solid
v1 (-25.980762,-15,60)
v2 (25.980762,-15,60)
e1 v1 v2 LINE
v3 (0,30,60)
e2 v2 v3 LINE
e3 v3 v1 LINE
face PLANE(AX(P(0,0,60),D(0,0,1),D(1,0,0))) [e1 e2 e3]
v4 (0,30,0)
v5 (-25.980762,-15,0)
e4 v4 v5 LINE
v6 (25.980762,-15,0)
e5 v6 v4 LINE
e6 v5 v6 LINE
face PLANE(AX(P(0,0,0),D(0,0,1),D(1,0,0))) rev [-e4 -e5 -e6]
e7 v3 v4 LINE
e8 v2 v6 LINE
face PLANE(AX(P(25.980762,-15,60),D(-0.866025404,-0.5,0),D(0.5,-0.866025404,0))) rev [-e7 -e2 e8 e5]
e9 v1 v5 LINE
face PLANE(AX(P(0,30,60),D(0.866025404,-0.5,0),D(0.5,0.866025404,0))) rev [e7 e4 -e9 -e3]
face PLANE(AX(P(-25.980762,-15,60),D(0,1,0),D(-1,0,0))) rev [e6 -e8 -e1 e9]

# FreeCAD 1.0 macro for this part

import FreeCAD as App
import Part
import Sketcher
from FreeCAD import Vector
Q = App.Units.Quantity

doc = App.newDocument("Part")
body = doc.addObject("PartDesign::Body", "Body")

# Sketch on XY plane
sketch1 = body.newObject("Sketcher::SketchObject", "Sketch")
sketch1.AttachmentSupport = (doc.getObject("XY_Plane"), [""])
sketch1.MapMode = "FlatFace"
sketch1.addGeometry(Part.LineSegment(Vector(0, 30, 0), Vector(-26, -15, 0)), False)
sketch1.addGeometry(Part.LineSegment(Vector(-26, -15, 0), Vector(26, -15, 0)), False)
sketch1.addGeometry(Part.LineSegment(Vector(26, -15, 0), Vector(0, 30, 0)), False)
sketch1.addConstraint(Sketcher.Constraint("Coincident", 0, 2, 1, 1))
sketch1.addConstraint(Sketcher.Constraint("Coincident", 1, 2, 2, 1))
sketch1.addConstraint(Sketcher.Constraint("Coincident", 2, 2, 0, 1))
sketch1.addConstraint(Sketcher.Constraint("Horizontal", 1))
sketch1.addConstraint(Sketcher.Constraint("PointOnObject", 2, 2, -2))
sketch1.addConstraint(Sketcher.Constraint("Equal", 0, 2))
sketch1.addConstraint(Sketcher.Constraint("Angle", 0, Q("-120 deg")))
sketch1.addConstraint(Sketcher.Constraint("DistanceY", 0, 2, -1, 1, Q("15 mm")))
sketch1.addConstraint(Sketcher.Constraint("DistanceY", -1, 1, 2, 2, Q("30 mm")))
pad1 = body.newObject("PartDesign::Pad", "Pad")
pad1.Profile = sketch1
pad1.Length = 60

doc.recompute()
